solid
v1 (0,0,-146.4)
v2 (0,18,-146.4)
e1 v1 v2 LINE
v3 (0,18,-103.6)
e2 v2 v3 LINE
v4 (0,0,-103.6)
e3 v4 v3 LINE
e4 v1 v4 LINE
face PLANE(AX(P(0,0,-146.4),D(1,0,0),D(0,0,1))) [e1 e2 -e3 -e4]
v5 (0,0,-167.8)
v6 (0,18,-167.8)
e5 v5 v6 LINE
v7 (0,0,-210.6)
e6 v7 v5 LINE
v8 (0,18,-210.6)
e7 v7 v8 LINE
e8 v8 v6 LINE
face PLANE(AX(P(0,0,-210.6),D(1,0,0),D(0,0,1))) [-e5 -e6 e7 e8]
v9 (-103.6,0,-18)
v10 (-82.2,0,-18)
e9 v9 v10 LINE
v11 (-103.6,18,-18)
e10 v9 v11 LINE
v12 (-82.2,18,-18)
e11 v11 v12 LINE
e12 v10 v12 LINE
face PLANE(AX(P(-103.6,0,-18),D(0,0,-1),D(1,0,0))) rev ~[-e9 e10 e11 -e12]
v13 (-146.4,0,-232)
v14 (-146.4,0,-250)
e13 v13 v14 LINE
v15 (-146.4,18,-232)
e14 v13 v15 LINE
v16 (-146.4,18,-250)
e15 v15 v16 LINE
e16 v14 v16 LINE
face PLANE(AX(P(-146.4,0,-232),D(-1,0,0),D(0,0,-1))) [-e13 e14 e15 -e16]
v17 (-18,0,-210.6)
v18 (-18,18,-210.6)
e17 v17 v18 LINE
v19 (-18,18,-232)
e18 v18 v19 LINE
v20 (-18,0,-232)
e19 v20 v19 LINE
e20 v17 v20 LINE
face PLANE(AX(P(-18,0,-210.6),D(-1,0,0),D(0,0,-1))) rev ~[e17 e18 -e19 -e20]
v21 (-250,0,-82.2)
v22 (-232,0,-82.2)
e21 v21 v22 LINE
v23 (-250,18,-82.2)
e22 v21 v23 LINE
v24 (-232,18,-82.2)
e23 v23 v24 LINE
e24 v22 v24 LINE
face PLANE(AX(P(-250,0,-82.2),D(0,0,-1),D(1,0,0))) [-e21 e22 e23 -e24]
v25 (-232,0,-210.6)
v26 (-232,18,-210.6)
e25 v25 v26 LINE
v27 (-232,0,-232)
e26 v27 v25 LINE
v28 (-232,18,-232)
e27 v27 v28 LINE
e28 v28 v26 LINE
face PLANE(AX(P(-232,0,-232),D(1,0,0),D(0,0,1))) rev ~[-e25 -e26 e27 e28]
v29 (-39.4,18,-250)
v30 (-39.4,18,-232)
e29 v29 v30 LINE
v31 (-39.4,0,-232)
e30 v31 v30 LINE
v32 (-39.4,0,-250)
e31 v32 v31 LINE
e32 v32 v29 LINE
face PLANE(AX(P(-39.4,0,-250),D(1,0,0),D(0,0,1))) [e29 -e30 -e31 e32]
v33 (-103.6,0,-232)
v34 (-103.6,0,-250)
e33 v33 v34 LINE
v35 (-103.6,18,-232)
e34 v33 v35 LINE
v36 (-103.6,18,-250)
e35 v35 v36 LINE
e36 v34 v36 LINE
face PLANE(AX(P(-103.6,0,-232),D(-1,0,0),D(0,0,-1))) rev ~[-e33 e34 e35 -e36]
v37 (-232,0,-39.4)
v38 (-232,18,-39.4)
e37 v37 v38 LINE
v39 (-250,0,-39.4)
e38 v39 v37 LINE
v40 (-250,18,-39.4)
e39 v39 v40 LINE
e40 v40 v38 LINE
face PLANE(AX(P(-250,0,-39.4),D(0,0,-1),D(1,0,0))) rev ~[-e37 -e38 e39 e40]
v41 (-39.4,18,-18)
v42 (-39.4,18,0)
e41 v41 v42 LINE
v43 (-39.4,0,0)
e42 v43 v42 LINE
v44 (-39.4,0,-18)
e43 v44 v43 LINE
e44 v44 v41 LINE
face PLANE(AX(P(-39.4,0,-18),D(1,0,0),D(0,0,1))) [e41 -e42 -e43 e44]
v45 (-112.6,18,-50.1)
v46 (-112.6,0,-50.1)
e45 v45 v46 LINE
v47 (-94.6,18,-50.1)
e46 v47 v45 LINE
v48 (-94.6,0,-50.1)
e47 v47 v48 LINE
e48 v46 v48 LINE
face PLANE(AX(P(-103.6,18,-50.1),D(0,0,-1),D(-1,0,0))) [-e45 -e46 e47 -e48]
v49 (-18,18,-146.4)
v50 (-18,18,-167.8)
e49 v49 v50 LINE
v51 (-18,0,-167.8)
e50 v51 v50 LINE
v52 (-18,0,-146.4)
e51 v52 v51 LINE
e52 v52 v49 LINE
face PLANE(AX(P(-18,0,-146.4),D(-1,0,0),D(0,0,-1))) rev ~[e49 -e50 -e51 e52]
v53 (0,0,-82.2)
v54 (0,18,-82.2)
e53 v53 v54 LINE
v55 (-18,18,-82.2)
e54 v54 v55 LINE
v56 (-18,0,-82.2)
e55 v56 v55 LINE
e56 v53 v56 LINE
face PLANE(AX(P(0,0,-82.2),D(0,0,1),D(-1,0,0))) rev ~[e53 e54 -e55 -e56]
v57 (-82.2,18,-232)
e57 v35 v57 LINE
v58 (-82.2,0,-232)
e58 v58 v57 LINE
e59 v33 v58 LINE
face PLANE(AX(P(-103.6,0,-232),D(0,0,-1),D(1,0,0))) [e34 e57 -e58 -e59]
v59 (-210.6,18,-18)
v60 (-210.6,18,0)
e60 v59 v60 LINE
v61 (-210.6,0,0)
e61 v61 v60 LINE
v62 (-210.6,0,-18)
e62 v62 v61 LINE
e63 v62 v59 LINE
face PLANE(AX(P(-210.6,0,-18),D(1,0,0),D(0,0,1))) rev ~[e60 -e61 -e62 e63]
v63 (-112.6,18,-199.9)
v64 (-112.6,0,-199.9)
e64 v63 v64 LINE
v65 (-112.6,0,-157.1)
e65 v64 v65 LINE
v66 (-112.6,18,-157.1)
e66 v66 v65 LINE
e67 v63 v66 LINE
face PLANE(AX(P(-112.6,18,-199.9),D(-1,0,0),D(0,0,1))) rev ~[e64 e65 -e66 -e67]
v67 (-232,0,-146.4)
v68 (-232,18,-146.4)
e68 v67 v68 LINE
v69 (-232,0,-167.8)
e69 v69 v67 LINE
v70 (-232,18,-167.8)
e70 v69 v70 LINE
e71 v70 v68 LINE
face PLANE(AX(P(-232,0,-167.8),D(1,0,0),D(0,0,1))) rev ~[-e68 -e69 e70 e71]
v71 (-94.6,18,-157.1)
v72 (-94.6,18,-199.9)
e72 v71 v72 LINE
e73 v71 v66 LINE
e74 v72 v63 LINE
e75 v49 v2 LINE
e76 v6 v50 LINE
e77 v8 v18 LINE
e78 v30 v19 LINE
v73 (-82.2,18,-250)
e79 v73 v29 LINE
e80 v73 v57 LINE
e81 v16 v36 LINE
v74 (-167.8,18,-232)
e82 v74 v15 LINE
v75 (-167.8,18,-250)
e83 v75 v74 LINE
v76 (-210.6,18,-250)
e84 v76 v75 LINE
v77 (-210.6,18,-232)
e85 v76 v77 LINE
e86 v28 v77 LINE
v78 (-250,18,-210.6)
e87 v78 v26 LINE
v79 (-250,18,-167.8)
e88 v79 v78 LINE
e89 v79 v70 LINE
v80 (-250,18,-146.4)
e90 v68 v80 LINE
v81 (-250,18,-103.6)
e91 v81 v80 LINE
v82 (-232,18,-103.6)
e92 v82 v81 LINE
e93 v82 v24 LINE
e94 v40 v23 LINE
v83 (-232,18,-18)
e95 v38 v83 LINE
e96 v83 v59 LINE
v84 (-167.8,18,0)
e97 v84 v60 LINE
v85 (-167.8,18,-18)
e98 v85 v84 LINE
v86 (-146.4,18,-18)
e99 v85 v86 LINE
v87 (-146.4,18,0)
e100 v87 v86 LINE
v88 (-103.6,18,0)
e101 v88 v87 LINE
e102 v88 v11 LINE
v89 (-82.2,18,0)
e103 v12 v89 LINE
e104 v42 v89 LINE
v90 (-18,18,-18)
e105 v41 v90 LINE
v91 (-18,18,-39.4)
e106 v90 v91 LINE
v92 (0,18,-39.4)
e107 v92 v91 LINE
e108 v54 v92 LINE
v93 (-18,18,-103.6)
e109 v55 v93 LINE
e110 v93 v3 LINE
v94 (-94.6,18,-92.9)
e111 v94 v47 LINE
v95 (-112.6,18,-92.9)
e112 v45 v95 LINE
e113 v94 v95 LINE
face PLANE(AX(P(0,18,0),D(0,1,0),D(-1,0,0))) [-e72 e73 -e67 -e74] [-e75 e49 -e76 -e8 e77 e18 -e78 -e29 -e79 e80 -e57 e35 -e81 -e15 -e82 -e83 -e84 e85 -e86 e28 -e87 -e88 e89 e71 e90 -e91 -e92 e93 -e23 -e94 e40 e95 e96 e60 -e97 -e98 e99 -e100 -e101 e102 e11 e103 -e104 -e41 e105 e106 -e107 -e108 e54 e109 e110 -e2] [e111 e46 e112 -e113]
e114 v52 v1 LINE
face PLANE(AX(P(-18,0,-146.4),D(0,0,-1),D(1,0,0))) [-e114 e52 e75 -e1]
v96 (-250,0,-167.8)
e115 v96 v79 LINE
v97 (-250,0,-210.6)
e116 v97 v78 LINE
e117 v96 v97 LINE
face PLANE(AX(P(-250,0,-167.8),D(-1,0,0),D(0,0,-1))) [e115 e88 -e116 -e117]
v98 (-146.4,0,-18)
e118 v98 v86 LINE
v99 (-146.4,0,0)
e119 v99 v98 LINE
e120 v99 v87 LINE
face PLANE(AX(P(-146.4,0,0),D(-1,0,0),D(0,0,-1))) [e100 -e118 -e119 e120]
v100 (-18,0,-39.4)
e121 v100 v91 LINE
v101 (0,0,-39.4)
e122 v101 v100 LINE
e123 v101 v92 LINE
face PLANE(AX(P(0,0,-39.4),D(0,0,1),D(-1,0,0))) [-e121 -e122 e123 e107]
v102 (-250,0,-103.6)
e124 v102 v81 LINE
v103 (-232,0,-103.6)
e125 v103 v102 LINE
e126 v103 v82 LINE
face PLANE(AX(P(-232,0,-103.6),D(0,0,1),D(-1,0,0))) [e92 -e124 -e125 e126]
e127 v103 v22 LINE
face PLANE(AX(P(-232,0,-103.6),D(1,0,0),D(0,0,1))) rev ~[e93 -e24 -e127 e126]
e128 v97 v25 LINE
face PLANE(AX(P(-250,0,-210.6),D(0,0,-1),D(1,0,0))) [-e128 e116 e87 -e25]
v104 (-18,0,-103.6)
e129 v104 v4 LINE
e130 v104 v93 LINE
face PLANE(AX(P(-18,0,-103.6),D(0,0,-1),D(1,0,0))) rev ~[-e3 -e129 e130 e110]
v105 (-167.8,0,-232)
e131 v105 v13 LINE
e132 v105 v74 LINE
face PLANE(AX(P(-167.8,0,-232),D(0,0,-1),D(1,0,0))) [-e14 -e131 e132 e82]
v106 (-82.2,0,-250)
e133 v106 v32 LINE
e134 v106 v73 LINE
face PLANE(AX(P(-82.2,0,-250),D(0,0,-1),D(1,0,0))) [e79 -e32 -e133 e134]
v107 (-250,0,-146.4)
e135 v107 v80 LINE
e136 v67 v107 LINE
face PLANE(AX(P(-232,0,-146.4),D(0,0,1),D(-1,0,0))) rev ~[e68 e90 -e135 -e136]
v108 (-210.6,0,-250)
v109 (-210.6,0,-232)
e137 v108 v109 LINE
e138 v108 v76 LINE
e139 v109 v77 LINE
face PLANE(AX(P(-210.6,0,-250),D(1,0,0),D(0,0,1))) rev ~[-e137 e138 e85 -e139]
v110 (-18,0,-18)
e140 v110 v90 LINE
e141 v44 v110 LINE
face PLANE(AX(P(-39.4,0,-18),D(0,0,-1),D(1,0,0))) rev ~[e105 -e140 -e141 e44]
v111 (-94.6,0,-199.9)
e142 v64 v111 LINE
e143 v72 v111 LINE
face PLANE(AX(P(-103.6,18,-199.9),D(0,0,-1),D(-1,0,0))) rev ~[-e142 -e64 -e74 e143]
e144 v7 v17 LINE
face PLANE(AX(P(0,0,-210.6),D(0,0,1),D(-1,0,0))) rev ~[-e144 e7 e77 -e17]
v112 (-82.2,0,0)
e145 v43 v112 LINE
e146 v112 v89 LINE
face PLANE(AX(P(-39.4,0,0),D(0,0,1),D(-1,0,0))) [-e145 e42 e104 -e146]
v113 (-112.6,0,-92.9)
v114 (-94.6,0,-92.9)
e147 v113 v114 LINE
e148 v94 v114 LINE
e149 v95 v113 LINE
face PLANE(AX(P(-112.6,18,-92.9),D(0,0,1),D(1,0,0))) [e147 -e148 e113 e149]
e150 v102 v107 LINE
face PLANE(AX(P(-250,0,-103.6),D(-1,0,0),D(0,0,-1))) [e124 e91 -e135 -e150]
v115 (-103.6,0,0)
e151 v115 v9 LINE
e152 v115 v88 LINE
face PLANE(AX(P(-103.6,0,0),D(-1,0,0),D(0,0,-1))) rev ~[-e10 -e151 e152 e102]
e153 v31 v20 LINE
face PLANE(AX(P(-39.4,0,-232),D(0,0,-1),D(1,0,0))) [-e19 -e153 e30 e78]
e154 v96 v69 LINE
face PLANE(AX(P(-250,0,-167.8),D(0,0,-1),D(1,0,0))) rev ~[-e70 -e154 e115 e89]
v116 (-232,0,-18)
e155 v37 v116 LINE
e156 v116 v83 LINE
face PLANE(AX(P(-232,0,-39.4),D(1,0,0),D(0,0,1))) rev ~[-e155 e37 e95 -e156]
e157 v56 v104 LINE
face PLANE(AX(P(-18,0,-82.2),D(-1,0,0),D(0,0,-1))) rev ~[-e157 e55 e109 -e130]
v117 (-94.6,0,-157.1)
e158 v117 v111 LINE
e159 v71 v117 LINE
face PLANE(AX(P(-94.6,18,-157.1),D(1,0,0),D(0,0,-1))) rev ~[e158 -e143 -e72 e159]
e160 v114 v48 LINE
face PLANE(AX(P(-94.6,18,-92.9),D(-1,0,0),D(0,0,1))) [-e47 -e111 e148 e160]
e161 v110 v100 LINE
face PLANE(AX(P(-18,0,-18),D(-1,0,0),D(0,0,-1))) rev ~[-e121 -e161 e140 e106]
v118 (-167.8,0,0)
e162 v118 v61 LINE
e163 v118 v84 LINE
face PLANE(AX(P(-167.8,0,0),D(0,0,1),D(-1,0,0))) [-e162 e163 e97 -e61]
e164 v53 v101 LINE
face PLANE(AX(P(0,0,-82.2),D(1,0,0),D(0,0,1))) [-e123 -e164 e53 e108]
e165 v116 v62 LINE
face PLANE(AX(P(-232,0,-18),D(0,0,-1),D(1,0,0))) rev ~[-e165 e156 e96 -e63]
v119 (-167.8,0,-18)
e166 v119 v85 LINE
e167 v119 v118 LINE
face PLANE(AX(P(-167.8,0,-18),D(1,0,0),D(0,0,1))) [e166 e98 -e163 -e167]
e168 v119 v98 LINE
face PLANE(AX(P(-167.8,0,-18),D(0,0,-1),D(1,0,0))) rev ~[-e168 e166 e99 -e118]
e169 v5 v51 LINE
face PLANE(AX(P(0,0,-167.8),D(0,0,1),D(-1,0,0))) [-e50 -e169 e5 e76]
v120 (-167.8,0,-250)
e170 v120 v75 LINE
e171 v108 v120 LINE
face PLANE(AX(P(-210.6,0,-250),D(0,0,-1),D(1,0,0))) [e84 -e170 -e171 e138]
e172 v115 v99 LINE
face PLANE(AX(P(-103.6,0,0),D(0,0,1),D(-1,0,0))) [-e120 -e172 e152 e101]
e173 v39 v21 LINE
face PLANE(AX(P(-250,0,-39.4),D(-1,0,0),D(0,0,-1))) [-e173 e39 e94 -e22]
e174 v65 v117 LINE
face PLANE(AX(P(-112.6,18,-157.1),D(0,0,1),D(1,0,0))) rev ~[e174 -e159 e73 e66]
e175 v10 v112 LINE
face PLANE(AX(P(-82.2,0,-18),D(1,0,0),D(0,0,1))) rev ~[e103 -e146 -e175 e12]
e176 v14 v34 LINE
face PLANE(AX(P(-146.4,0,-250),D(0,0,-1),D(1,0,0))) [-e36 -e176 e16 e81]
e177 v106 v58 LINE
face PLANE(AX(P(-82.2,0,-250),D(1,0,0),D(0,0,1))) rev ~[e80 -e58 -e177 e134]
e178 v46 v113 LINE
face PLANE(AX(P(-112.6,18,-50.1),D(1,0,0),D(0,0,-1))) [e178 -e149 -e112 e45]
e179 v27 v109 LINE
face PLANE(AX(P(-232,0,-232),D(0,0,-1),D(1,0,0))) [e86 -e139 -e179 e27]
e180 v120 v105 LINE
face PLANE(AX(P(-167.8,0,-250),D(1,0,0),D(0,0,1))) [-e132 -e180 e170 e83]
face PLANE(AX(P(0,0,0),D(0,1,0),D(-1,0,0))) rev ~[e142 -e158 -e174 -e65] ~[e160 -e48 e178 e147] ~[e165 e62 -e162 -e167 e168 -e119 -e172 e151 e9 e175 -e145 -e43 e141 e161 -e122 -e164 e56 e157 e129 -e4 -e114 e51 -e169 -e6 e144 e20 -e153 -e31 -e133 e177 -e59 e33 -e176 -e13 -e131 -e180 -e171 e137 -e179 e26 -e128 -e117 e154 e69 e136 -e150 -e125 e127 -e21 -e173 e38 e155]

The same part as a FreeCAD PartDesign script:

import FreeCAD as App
import Part
import Sketcher
Q = App.Units.Quantity


def add_polygon(sketch, points):
    """Adds a closed chain of lines whose ends are joined by coincident constraints."""
    first, n = sketch.GeometryCount, len(points)
    for a, b in zip(points, points[1:] + points[:1]):
        sketch.addGeometry(Part.LineSegment(App.Vector(*a, 0), App.Vector(*b, 0)), False)
    for i in range(n):
        sketch.addConstraint(Sketcher.Constraint("Coincident", first + i, 2, first + (i + 1) % n, 1))

doc = App.newDocument("Part")
body = doc.addObject("PartDesign::Body", "Body")

sketch1 = body.newObject("Sketcher::SketchObject", "Sketch")
sketch1.AttachmentSupport = (doc.getObject("XZ_Plane"), [""])
sketch1.MapMode = "FlatFace"
add_polygon(sketch1, [(-82, 0), (-39, 0), (-39, -18), (-18, -18), (-18, -39), (0, -39), (0, -82), (-18, -82), (-18, -104), (0, -104), (0, -146), (-18, -146), (-18, -168), (0, -168), (0, -211), (-18, -211), (-18, -232), (-39, -232), (-39, -250), (-82, -250), (-82, -232), (-104, -232), (-104, -250), (-146, -250), (-146, -232), (-168, -232), (-168, -250), (-211, -250), (-211, -232), (-232, -232), (-232, -211), (-250, -211), (-250, -168), (-232, -168), (-232, -146), (-250, -146), (-250, -104), (-232, -104), (-232, -82), (-250, -82), (-250, -39), (-232, -39), (-232, -18), (-211, -18), (-211, 0), (-168, 0), (-168, -18), (-146, -18), (-146, 0), (-104, 0), (-104, -18), (-82, -18)])
sketch1.addConstraint([
    Sketcher.Constraint("Horizontal", 0),
    Sketcher.Constraint("Vertical", 1),
    Sketcher.Constraint("Horizontal", 2),
    Sketcher.Constraint("Vertical", 3),
    Sketcher.Constraint("Horizontal", 4),
    Sketcher.Constraint("Vertical", 5),
    Sketcher.Constraint("Horizontal", 6),
    Sketcher.Constraint("Vertical", 7),
    Sketcher.Constraint("Horizontal", 8),
    Sketcher.Constraint("Vertical", 9),
    Sketcher.Constraint("Horizontal", 10),
    Sketcher.Constraint("Vertical", 11),
    Sketcher.Constraint("Horizontal", 12),
    Sketcher.Constraint("Vertical", 13),
    Sketcher.Constraint("Horizontal", 14),
    Sketcher.Constraint("Vertical", 15),
    Sketcher.Constraint("Horizontal", 16),
    Sketcher.Constraint("Vertical", 17),
    Sketcher.Constraint("Horizontal", 18),
    Sketcher.Constraint("Vertical", 19),
    Sketcher.Constraint("Horizontal", 20),
    Sketcher.Constraint("Vertical", 21),
    Sketcher.Constraint("Horizontal", 22),
    Sketcher.Constraint("Vertical", 23),
    Sketcher.Constraint("Horizontal", 24),
    Sketcher.Constraint("Vertical", 25),
    Sketcher.Constraint("Horizontal", 26),
    Sketcher.Constraint("Vertical", 27),
    Sketcher.Constraint("Horizontal", 28),
    Sketcher.Constraint("Vertical", 29),
    Sketcher.Constraint("Horizontal", 30),
    Sketcher.Constraint("Vertical", 31),
    Sketcher.Constraint("Horizontal", 32),
    Sketcher.Constraint("Vertical", 33),
    Sketcher.Constraint("Horizontal", 34),
    Sketcher.Constraint("Vertical", 35),
    Sketcher.Constraint("Horizontal", 36),
    Sketcher.Constraint("Vertical", 37),
    Sketcher.Constraint("Horizontal", 38),
    Sketcher.Constraint("Vertical", 39),
    Sketcher.Constraint("Horizontal", 40),
    Sketcher.Constraint("Vertical", 41),
    Sketcher.Constraint("Horizontal", 42),
    Sketcher.Constraint("Vertical", 43),
    Sketcher.Constraint("Horizontal", 44),
    Sketcher.Constraint("Vertical", 45),
    Sketcher.Constraint("Horizontal", 46),
    Sketcher.Constraint("Vertical", 47),
    Sketcher.Constraint("Horizontal", 48),
    Sketcher.Constraint("Vertical", 49),
    Sketcher.Constraint("Horizontal", 50),
    Sketcher.Constraint("Vertical", 51),
    Sketcher.Constraint("PointOnObject", 0, 2, -1),
    Sketcher.Constraint("PointOnObject", 4, 2, -2),
    Sketcher.Constraint("PointOnObject", 8, 2, -2),
    Sketcher.Constraint("PointOnObject", 12, 2, -2),
    Sketcher.Constraint("PointOnObject", 43, 2, -1),
    Sketcher.Constraint("PointOnObject", 47, 2, -1),
    Sketcher.Constraint("Horizontal", 16, 2, 19, 2),
    Sketcher.Constraint("Horizontal", 18, 2, 21, 2),
    Sketcher.Constraint("Horizontal", 20, 2, 23, 2),
    Sketcher.Constraint("Horizontal", 22, 2, 25, 2),
    Sketcher.Constraint("Horizontal", 24, 2, 27, 2),
    Sketcher.Constraint("Horizontal", 14, 2, 29, 2),
    Sketcher.Constraint("Horizontal", 12, 2, 31, 2),
    Sketcher.Constraint("Horizontal", 10, 2, 33, 2),
    Sketcher.Constraint("Horizontal", 8, 2, 35, 2),
    Sketcher.Constraint("Horizontal", 6, 2, 37, 2),
    Sketcher.Constraint("Horizontal", 4, 2, 39, 2),
    Sketcher.Constraint("Horizontal", 2, 2, 41, 2),
    Sketcher.Constraint("Horizontal", 42, 2, 45, 2),
    Sketcher.Constraint("Horizontal", 46, 2, 49, 2),
    Sketcher.Constraint("Vertical", 3, 2, 6, 2),
    Sketcher.Constraint("Vertical", 7, 2, 10, 2),
    Sketcher.Constraint("Vertical", 11, 2, 14, 2),
    Sketcher.Constraint("Vertical", 1, 2, 16, 2),
    Sketcher.Constraint("Vertical", 29, 2, 32, 2),
    Sketcher.Constraint("Vertical", 31, 2, 34, 2),
    Sketcher.Constraint("Vertical", 33, 2, 36, 2),
    Sketcher.Constraint("Vertical", 35, 2, 38, 2),
    Sketcher.Constraint("Vertical", 37, 2, 40, 2),
    Sketcher.Constraint("Vertical", 27, 2, 42, 2),
    Sketcher.Constraint("Vertical", 25, 2, 44, 2),
    Sketcher.Constraint("Vertical", 23, 2, 46, 2),
    Sketcher.Constraint("Vertical", 21, 2, 48, 2),
    Sketcher.Constraint("Vertical", 19, 2, 50, 2),
    Sketcher.Constraint("Equal", 16, 20),
    Sketcher.Constraint("Equal", 18, 22),
    Sketcher.Constraint("Equal", 20, 24),
    Sketcher.Constraint("Equal", 22, 26),
    Sketcher.Constraint("Equal", 24, 28),
    Sketcher.Constraint("Equal", 14, 30),
    Sketcher.Constraint("Equal", 40, 1),
    Sketcher.Constraint("Equal", 50, 3),
    Sketcher.Constraint("Equal", 48, 5),
    Sketcher.Constraint("Equal", 3, 7),
    Sketcher.Constraint("Equal", 5, 9),
    Sketcher.Constraint("Equal", 7, 11),
    Sketcher.Constraint("Equal", 9, 13),
    Sketcher.Constraint("Equal", 11, 15),
    Sketcher.Constraint("Equal", 1, 17),
    Sketcher.Constraint("DistanceX", 2, 1, 2, 2, Q("21.4 mm")),
    Sketcher.Constraint("DistanceY", 17, 2, -1, 1, Q("250 mm")),
    Sketcher.Constraint("DistanceX", 4, 1, 4, 2, Q("18 mm")),
])
pad1 = body.newObject("PartDesign::Pad", "Pad")
pad1.Profile = sketch1
pad1.Length = 18
pad1.Reversed = True

sketch2 = body.newObject("Sketcher::SketchObject", "Sketch001")
sketch2.AttachmentSupport = (doc.getObject("XZ_Plane"), [""])
sketch2.MapMode = "FlatFace"
sketch2.AttachmentOffset = App.Placement(App.Vector(0, 0, -18), App.Rotation())
add_polygon(sketch2, [(-113, -50), (-95, -50), (-95, -93), (-113, -93)])
add_polygon(sketch2, [(-113, -157), (-95, -157), (-95, -200), (-113, -200)])
sketch2.addConstraint([
    Sketcher.Constraint("Horizontal", 0),
    Sketcher.Constraint("Vertical", 1),
    Sketcher.Constraint("Horizontal", 2),
    Sketcher.Constraint("Vertical", 3),
    Sketcher.Constraint("Horizontal", 4),
    Sketcher.Constraint("Vertical", 5),
    Sketcher.Constraint("Horizontal", 6),
    Sketcher.Constraint("Vertical", 7),
    Sketcher.Constraint("Vertical", 1, 2, 4, 2),
    Sketcher.Constraint("Vertical", 3, 2, 6, 2),
    Sketcher.Constraint("Equal", 3, 5),
    Sketcher.Constraint("DistanceX", 0, 1, 0, 2, Q("18 mm")),
    Sketcher.Constraint("DistanceY", 1, 2, 1, 1, Q("42.8 mm")),
    Sketcher.Constraint("DistanceY", 4, 2, 0, 2, Q("107 mm")),
    Sketcher.Constraint("DistanceX", 0, 2, -1, 1, Q("94.6 mm")),
    Sketcher.Constraint("DistanceY", 0, 2, -1, 1, Q("50.1 mm")),
])
pocket1 = body.newObject("PartDesign::Pocket", "Pocket")
pocket1.Profile = sketch2
pocket1.Length = 18
pocket1.Reversed = True

doc.recompute()
